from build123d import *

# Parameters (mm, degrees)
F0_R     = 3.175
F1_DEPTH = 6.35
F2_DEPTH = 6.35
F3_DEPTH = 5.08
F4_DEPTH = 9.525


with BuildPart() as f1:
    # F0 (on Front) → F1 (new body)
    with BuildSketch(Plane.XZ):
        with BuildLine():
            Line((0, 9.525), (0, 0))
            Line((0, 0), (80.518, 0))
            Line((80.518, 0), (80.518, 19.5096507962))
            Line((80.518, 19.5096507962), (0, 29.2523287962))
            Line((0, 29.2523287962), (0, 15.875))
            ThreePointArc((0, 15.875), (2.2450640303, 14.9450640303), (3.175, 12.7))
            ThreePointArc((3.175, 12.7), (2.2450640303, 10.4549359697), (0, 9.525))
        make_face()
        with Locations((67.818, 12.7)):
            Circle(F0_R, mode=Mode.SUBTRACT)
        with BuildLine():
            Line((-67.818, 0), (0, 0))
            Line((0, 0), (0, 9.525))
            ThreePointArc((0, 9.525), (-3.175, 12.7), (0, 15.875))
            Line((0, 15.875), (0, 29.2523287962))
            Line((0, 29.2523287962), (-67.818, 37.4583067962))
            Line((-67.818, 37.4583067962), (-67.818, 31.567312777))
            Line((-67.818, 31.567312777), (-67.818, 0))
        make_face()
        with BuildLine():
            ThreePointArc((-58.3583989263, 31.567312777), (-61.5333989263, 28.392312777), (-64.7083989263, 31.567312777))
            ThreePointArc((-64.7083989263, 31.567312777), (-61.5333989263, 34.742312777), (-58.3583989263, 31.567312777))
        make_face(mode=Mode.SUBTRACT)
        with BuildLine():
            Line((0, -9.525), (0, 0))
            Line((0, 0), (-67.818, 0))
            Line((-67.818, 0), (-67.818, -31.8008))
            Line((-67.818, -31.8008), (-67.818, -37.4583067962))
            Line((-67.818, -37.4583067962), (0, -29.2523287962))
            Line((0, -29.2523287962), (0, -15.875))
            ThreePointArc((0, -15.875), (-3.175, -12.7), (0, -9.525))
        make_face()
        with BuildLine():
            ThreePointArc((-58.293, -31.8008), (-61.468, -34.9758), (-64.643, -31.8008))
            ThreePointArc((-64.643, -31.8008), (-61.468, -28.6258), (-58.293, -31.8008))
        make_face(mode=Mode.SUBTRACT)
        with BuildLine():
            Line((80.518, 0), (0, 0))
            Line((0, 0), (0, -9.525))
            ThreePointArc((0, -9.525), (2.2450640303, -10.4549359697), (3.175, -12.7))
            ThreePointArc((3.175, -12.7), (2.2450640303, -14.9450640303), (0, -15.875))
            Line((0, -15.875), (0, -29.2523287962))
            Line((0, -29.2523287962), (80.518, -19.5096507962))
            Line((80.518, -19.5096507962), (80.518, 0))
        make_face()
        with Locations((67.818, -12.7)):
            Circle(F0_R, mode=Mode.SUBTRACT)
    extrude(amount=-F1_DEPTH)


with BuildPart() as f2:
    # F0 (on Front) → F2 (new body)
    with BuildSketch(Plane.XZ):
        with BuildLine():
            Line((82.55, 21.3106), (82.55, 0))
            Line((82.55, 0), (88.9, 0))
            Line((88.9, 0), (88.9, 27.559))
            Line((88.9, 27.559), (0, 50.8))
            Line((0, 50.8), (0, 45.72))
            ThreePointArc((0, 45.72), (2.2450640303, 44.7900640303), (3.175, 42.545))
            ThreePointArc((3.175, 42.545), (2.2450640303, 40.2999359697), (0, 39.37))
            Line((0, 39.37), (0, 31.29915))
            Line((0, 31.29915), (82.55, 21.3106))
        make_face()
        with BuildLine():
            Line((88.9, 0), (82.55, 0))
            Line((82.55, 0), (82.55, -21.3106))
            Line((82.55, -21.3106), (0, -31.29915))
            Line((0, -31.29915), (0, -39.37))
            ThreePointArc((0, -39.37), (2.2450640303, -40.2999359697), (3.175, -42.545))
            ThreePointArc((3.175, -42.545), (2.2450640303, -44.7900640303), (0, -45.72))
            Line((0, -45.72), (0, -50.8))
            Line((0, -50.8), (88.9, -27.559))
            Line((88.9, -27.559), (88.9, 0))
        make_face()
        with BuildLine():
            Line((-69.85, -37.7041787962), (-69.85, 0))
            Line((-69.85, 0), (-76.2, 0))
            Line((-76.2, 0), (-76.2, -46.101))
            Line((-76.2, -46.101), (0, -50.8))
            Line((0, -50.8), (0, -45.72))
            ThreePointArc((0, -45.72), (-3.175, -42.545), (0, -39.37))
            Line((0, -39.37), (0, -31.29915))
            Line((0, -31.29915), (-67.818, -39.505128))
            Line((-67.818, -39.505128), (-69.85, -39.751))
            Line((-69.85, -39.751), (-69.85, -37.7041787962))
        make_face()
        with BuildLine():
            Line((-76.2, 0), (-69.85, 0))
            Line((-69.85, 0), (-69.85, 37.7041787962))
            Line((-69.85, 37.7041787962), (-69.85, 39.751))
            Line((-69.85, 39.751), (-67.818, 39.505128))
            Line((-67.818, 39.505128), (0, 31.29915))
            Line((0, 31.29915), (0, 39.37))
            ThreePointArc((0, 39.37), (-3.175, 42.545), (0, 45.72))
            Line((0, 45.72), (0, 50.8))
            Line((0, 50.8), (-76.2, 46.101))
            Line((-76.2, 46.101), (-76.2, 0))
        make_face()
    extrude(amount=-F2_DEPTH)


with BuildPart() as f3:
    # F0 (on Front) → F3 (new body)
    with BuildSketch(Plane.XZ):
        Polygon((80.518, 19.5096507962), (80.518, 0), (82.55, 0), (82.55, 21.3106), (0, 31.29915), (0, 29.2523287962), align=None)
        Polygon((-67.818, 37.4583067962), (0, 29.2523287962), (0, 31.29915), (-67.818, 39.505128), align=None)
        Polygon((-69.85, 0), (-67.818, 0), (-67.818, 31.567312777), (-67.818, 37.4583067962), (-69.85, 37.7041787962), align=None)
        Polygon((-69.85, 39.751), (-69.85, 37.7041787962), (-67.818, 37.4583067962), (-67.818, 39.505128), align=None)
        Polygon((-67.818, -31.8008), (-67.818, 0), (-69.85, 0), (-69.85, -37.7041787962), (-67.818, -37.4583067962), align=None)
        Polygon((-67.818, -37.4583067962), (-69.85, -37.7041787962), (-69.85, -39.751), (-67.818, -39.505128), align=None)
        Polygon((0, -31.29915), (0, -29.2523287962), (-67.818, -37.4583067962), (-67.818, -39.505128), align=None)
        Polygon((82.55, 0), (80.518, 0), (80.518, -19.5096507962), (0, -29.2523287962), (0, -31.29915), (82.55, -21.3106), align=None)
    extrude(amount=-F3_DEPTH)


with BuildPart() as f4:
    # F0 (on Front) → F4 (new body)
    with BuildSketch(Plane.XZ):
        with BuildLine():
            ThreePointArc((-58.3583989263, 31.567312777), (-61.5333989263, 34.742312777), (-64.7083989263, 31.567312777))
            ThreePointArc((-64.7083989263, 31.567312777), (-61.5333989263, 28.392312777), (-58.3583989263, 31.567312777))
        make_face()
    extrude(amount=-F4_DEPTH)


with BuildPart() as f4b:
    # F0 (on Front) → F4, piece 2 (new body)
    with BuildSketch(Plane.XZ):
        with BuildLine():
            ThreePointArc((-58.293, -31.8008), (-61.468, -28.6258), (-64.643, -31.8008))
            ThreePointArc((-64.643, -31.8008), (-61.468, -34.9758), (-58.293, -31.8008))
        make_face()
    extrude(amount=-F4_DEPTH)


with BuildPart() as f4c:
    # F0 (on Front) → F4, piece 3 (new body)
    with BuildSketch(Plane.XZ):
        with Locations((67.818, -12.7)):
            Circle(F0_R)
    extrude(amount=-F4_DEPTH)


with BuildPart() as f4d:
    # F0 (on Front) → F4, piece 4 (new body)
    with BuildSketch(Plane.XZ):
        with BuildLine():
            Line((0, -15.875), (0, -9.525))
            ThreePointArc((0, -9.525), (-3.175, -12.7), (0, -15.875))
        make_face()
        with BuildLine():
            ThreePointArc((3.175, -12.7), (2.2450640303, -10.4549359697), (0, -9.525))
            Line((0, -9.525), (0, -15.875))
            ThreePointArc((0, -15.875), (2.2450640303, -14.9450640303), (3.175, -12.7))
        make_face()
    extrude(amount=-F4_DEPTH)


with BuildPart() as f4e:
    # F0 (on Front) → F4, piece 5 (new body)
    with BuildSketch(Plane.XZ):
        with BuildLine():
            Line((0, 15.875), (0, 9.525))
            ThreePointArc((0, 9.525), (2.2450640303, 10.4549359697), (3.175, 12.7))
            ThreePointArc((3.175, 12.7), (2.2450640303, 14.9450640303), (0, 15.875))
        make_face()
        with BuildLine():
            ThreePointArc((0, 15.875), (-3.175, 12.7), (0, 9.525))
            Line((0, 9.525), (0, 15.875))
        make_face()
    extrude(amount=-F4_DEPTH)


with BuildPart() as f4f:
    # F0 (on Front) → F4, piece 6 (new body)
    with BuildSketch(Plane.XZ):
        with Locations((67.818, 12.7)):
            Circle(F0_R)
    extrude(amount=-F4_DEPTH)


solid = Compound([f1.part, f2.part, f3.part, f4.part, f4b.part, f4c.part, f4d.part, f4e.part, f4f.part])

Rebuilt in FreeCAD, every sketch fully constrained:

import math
import FreeCAD as App
import Part
import Sketcher
from FreeCAD import Vector
Q = App.Units.Quantity


def add_polygon(sketch, points):
    """Adds a closed chain of lines whose ends are joined by coincident constraints."""
    first, n = sketch.GeometryCount, len(points)
    for a, b in zip(points, points[1:] + points[:1]):
        sketch.addGeometry(Part.LineSegment(App.Vector(*a, 0), App.Vector(*b, 0)), False)
    for i in range(n):
        sketch.addConstraint(Sketcher.Constraint("Coincident", first + i, 2, first + (i + 1) % n, 1))

doc = App.newDocument("Part")
body = doc.addObject("PartDesign::Body", "Body")

# Sketch on XZ plane
sketch1 = doc.addObject("Sketcher::SketchObject", "Sketch")
body.addObject(sketch1)
sketch1.AttachmentSupport = (doc.XZ_Plane, [""])
sketch1.MapMode = "FlatFace"
add_polygon(sketch1, [(80.518, 19.509651), (-67.818, 37.458307), (-67.818, -37.458307), (80.518, -19.509651)])  # lines 0-3
sketch1.addGeometry(Part.Circle(Vector(-61.468, -31.8008, 0), Vector(0, 0, 1), 3.175), False)  # 4
sketch1.addGeometry(Part.ArcOfCircle(Part.Circle(Vector(0, -12.7, 0), Vector(0, 0, 1), 3.175), math.radians(90), math.radians(270)), False)  # 5
sketch1.addGeometry(Part.ArcOfCircle(Part.Circle(Vector(0, -12.7, 0), Vector(0, 0, 1), 3.175), math.radians(0), math.radians(90)), False)  # 6
sketch1.addGeometry(Part.ArcOfCircle(Part.Circle(Vector(0, -12.7, 0), Vector(0, 0, 1), 3.175), math.radians(-90), math.radians(0)), False)  # 7
sketch1.addGeometry(Part.Circle(Vector(67.818, -12.7, 0), Vector(0, 0, 1), 3.175), False)  # 8
sketch1.addGeometry(Part.ArcOfCircle(Part.Circle(Vector(0, 12.7, 0), Vector(0, 0, 1), 3.175), math.radians(-90), math.radians(0)), False)  # 9
sketch1.addGeometry(Part.ArcOfCircle(Part.Circle(Vector(0, 12.7, 0), Vector(0, 0, 1), 3.175), math.radians(90), math.radians(270)), False)  # 10
sketch1.addGeometry(Part.ArcOfCircle(Part.Circle(Vector(0, 12.7, 0), Vector(0, 0, 1), 3.175), math.radians(0), math.radians(90)), False)  # 11
sketch1.addGeometry(Part.Circle(Vector(-61.533399, 31.567313, 0), Vector(0, 0, 1), 3.175), False)  # 12
sketch1.addGeometry(Part.Circle(Vector(67.818, 12.7, 0), Vector(0, 0, 1), 3.175), False)  # 13
sketch1.addConstraint([
    Sketcher.Constraint("Tangent", 5, 1, 6, 2),
    Sketcher.Constraint("Tangent", 6, 1, 7, 2),
    Sketcher.Constraint("Tangent", 7, 1, 5, 2),
    Sketcher.Constraint("Tangent", 9, 1, 10, 2),
    Sketcher.Constraint("Tangent", 10, 1, 11, 2),
    Sketcher.Constraint("Tangent", 11, 1, 9, 2),
    Sketcher.Constraint("Vertical", 1),
    Sketcher.Constraint("Vertical", 3),
    Sketcher.Constraint("Equal", 4, 5),
    Sketcher.Constraint("Equal", 7, 8),
    Sketcher.Constraint("Equal", 8, 9),
    Sketcher.Constraint("Equal", 11, 12),
    Sketcher.Constraint("Equal", 12, 13),
    Sketcher.Constraint("Symmetric", 5, 3, 9, 3, -1, 1),
    Sketcher.Constraint("Symmetric", 8, 3, 13, 3, -1),
    Sketcher.Constraint("Symmetric", 6, 1, 11, 1, -1),
    Sketcher.Constraint("PointOnObject", 5, 1, -2),
    Sketcher.Constraint("PointOnObject", 7, 1, -2),
    Sketcher.Constraint("PointOnObject", 9, 1, -2),
    Sketcher.Constraint("PointOnObject", 10, 1, -2),
    Sketcher.Constraint("Horizontal", 7, 3, 8, 3),
    Sketcher.Constraint("Horizontal", 8, 3, 6, 1),
    Sketcher.Constraint("Equal", 0, 2),
    Sketcher.Constraint("Diameter", 4, Q("0.25 in")),
    Sketcher.Constraint("DistanceY", 5, 3, 9, 3, Q("1 in")),
    Sketcher.Constraint("DistanceX", 8, 3, 2, 2, Q("0.5 in")),
    Sketcher.Constraint("DistanceX", 4, 3, -1, 1, Q("2.42 in")),
    Sketcher.Constraint("DistanceX", -1, 1, 8, 3, Q("2.67 in")),
    Sketcher.Constraint("DistanceX", 0, 2, -1, 1, Q("2.67 in")),
    Sketcher.Constraint("DistanceY", 4, 3, -1, 1, Q("1.252 in")),
    Sketcher.Constraint("DistanceY", 3, 1, 3, 2, 39.019302),
    Sketcher.Constraint("DistanceX", 12, 3, -1, 1, 61.533399),
    Sketcher.Constraint("DistanceY", 1, 2, 1, 1, 74.916614),
    Sketcher.Constraint("DistanceY", 2, 2, -1, 1, 19.509651),
    Sketcher.Constraint("DistanceY", 1, 2, 12, 3, 69.02562),
])
pad1 = doc.addObject("PartDesign::Pad", "Pad")
body.addObject(pad1)
pad1.Profile = sketch1
pad1.Length = Q("0.25 in")
pad1.Reversed = True
body2 = doc.addObject("PartDesign::Body", "Body001")

# Sketch on XZ plane
sketch2 = doc.addObject("Sketcher::SketchObject", "Sketch001")
body2.addObject(sketch2)
sketch2.AttachmentSupport = (doc.getObject("XZ_Plane001"), [""])
sketch2.MapMode = "FlatFace"
add_polygon(sketch2, [(-76.2, -46.101), (0, -50.8), (88.9, -27.559), (88.9, 27.559), (0, 50.8), (-76.2, 46.101)])  # lines 0-5
add_polygon(sketch2, [(82.55, 21.3106), (82.55, -21.3106), (-69.85, -39.751), (-69.85, 39.751)])  # lines 6-9
sketch2.addGeometry(Part.ArcOfCircle(Part.Circle(Vector(0, 42.545, 0), Vector(0, 0, 1), 3.175), math.radians(0), math.radians(90)), False)  # 10
sketch2.addGeometry(Part.ArcOfCircle(Part.Circle(Vector(0, 42.545, 0), Vector(0, 0, 1), 3.175), math.radians(-90), math.radians(0)), False)  # 11
sketch2.addGeometry(Part.ArcOfCircle(Part.Circle(Vector(0, 42.545, 0), Vector(0, 0, 1), 3.175), math.radians(90), math.radians(270)), False)  # 12
sketch2.addGeometry(Part.ArcOfCircle(Part.Circle(Vector(0, -42.545, 0), Vector(0, 0, 1), 3.175), math.radians(0), math.radians(90)), False)  # 13
sketch2.addGeometry(Part.ArcOfCircle(Part.Circle(Vector(0, -42.545, 0), Vector(0, 0, 1), 3.175), math.radians(-90), math.radians(0)), False)  # 14
sketch2.addGeometry(Part.ArcOfCircle(Part.Circle(Vector(0, -42.545, 0), Vector(0, 0, 1), 3.175), math.radians(90), math.radians(270)), False)  # 15
sketch2.addConstraint([
    Sketcher.Constraint("Tangent", 10, 1, 11, 2),
    Sketcher.Constraint("Tangent", 11, 1, 12, 2),
    Sketcher.Constraint("Tangent", 12, 1, 10, 2),
    Sketcher.Constraint("Tangent", 13, 1, 14, 2),
    Sketcher.Constraint("Tangent", 14, 1, 15, 2),
    Sketcher.Constraint("Tangent", 15, 1, 13, 2),
    Sketcher.Constraint("Vertical", 2),
    Sketcher.Constraint("Vertical", 5),
    Sketcher.Constraint("Vertical", 6),
    Sketcher.Constraint("Vertical", 8),
    Sketcher.Constraint("Equal", 12, 13),
    Sketcher.Constraint("Symmetric", 10, 3, 13, 3, -1, 1),
    Sketcher.Constraint("Symmetric", 0, 2, 3, 2, -1, 1),
    Sketcher.Constraint("Symmetric", 10, 1, 13, 1, -1),
    Sketcher.Constraint("PointOnObject", 0, 2, -2),
    Sketcher.Constraint("PointOnObject", 11, 1, -2),
    Sketcher.Constraint("PointOnObject", 12, 1, -2),
    Sketcher.Constraint("PointOnObject", 14, 1, -2),
    Sketcher.Constraint("PointOnObject", 15, 1, -2),
    Sketcher.Constraint("Horizontal", 12, 3, 10, 1),
    Sketcher.Constraint("Equal", 1, 3),
    Sketcher.Constraint("Equal", 0, 4),
    Sketcher.Constraint("Equal", 7, 9),
    Sketcher.Constraint("DistanceY", 0, 2, -1, 1, Q("2 in")),
    Sketcher.Constraint("DistanceX", 4, 2, -1, 1, Q("3 in")),
    Sketcher.Constraint("Radius", 10, Q("0.125 in")),
    Sketcher.Constraint("DistanceY", 2, 1, 2, 2, Q("2.17 in")),
    Sketcher.Constraint("DistanceY", 5, 2, 5, 1, Q("3.63 in")),
    Sketcher.Constraint("DistanceY", 8, 1, 8, 2, Q("3.13 in")),
    Sketcher.Constraint("DistanceX", -1, 1, 1, 2, Q("3.5 in")),
    Sketcher.Constraint("DistanceY", -1, 1, 12, 1, Q("1.8 in")),
    Sketcher.Constraint("DistanceY", 6, 2, 6, 1, Q("1.678 in")),
    Sketcher.Constraint("DistanceX", -1, 1, 6, 2, Q("3.25 in")),
    Sketcher.Constraint("DistanceX", 7, 2, -1, 1, Q("2.75 in")),
    Sketcher.Constraint("DistanceY", 5, 2, 7, 2, Q("0.25 in")),
])
pad2 = doc.addObject("PartDesign::Pad", "Pad001")
body2.addObject(pad2)
pad2.Profile = sketch2
pad2.Length = Q("0.25 in")
pad2.Reversed = True
body3 = doc.addObject("PartDesign::Body", "Body002")

# Sketch on XZ plane
sketch3 = doc.addObject("Sketcher::SketchObject", "Sketch002")
body3.addObject(sketch3)
sketch3.AttachmentSupport = (doc.getObject("XZ_Plane002"), [""])
sketch3.MapMode = "FlatFace"
add_polygon(sketch3, [(82.55, 21.3106), (-69.85, 39.751), (-69.85, -39.751), (82.55, -21.3106)])  # lines 0-3
add_polygon(sketch3, [(80.518, 19.509651), (80.518, -19.509651), (-67.818, -37.458307), (-67.818, 37.458307)])  # lines 4-7
sketch3.addConstraint([
    Sketcher.Constraint("Vertical", 1),
    Sketcher.Constraint("Vertical", 3),
    Sketcher.Constraint("Vertical", 4),
    Sketcher.Constraint("Vertical", 6),
    Sketcher.Constraint("Parallel", 2, 5),
    Sketcher.Constraint("Parallel", 0, 7),
    Sketcher.Constraint("Equal", 0, 2),
    Sketcher.Constraint("DistanceX", 1, 2, 2, 2, Q("6 in")),
    Sketcher.Constraint("DistanceY", 1, 2, 1, 1, Q("3.13 in")),
    Sketcher.Constraint("DistanceY", 3, 1, 3, 2, Q("1.678 in")),
    Sketcher.Constraint("DistanceX", 0, 2, -1, 1, Q("2.75 in")),
    Sketcher.Constraint("DistanceX", -1, 1, 4, 2, Q("3.17 in")),
    Sketcher.Constraint("DistanceX", 5, 2, -1, 1, Q("2.67 in")),
    Sketcher.Constraint("DistanceY", -1, 1, 0, 2, Q("1.565 in")),
    Sketcher.Constraint("DistanceY", 4, 2, 4, 1, 39.019302),
    Sketcher.Constraint("DistanceY", 4, 2, -1, 1, 19.509651),
])
pad3 = doc.addObject("PartDesign::Pad", "Pad002")
body3.addObject(pad3)
pad3.Profile = sketch3
pad3.Length = Q("0.2 in")
pad3.Reversed = True
body4 = doc.addObject("PartDesign::Body", "Body003")

# Sketch on XZ plane
sketch4 = doc.addObject("Sketcher::SketchObject", "Sketch003")
body4.addObject(sketch4)
sketch4.AttachmentSupport = (doc.getObject("XZ_Plane003"), [""])
sketch4.MapMode = "FlatFace"
sketch4.addGeometry(Part.Circle(Vector(-61.533399, 31.567313, 0), Vector(0, 0, 1), 3.175), False)
sketch4.addConstraint([
    Sketcher.Constraint("Diameter", 0, Q("0.25 in")),
    Sketcher.Constraint("DistanceX", 0, 3, -1, 1, 61.533399),
    Sketcher.Constraint("DistanceY", -1, 1, 0, 3, 31.567313),
])
pad4 = doc.addObject("PartDesign::Pad", "Pad003")
body4.addObject(pad4)
pad4.Profile = sketch4
pad4.Length = Q("0.375 in")
pad4.Reversed = True
body5 = doc.addObject("PartDesign::Body", "Body004")

# Sketch on XZ plane
sketch5 = doc.addObject("Sketcher::SketchObject", "Sketch004")
body5.addObject(sketch5)
sketch5.AttachmentSupport = (doc.getObject("XZ_Plane004"), [""])
sketch5.MapMode = "FlatFace"
sketch5.addGeometry(Part.Circle(Vector(-61.468, -31.8008, 0), Vector(0, 0, 1), 3.175), False)
sketch5.addConstraint([
    Sketcher.Constraint("Diameter", 0, Q("0.25 in")),
    Sketcher.Constraint("DistanceX", 0, 3, -1, 1, Q("2.42 in")),
    Sketcher.Constraint("DistanceY", 0, 3, -1, 1, Q("1.252 in")),
])
pad5 = doc.addObject("PartDesign::Pad", "Pad004")
body5.addObject(pad5)
pad5.Profile = sketch5
pad5.Length = Q("0.375 in")
pad5.Reversed = True
body6 = doc.addObject("PartDesign::Body", "Body005")

# Sketch on XZ plane
sketch6 = doc.addObject("Sketcher::SketchObject", "Sketch005")
body6.addObject(sketch6)
sketch6.AttachmentSupport = (doc.getObject("XZ_Plane005"), [""])
sketch6.MapMode = "FlatFace"
sketch6.addGeometry(Part.Circle(Vector(67.818, -12.7, 0), Vector(0, 0, 1), 3.175), False)
sketch6.addConstraint([
    Sketcher.Constraint("Diameter", 0, Q("0.25 in")),
    Sketcher.Constraint("DistanceY", 0, 3, -1, 1, Q("0.5 in")),
    Sketcher.Constraint("DistanceX", -1, 1, 0, 3, Q("2.67 in")),
])
pad6 = doc.addObject("PartDesign::Pad", "Pad005")
body6.addObject(pad6)
pad6.Profile = sketch6
pad6.Length = Q("0.375 in")
pad6.Reversed = True
body7 = doc.addObject("PartDesign::Body", "Body006")

# Sketch on XZ plane
sketch7 = doc.addObject("Sketcher::SketchObject", "Sketch006")
body7.addObject(sketch7)
sketch7.AttachmentSupport = (doc.getObject("XZ_Plane006"), [""])
sketch7.MapMode = "FlatFace"
sketch7.addGeometry([
    Part.ArcOfCircle(Part.Circle(Vector(0, -12.7, 0), Vector(0, 0, 1), 3.175), math.radians(90), math.radians(270)),
    Part.ArcOfCircle(Part.Circle(Vector(0, -12.7, 0), Vector(0, 0, 1), 3.175), math.radians(-90), math.radians(0)),
    Part.ArcOfCircle(Part.Circle(Vector(0, -12.7, 0), Vector(0, 0, 1), 3.175), math.radians(0), math.radians(90)),
], False)
sketch7.addConstraint([
    Sketcher.Constraint("Tangent", 0, 2, 1, 1),
    Sketcher.Constraint("Tangent", 1, 2, 2, 1),
    Sketcher.Constraint("Tangent", 2, 2, 0, 1),
    Sketcher.Constraint("PointOnObject", 0, 3, -2),
    Sketcher.Constraint("PointOnObject", 0, 2, -2),
    Sketcher.Constraint("PointOnObject", 2, 2, -2),
    Sketcher.Constraint("Horizontal", 2, 3, 1, 2),
    Sketcher.Constraint("Radius", 0, Q("0.125 in")),
    Sketcher.Constraint("DistanceY", 0, 3, -1, 1, Q("0.5 in")),
])
pad7 = doc.addObject("PartDesign::Pad", "Pad006")
body7.addObject(pad7)
pad7.Profile = sketch7
pad7.Length = Q("0.375 in")
pad7.Reversed = True
body8 = doc.addObject("PartDesign::Body", "Body007")

# Sketch on XZ plane
sketch8 = doc.addObject("Sketcher::SketchObject", "Sketch007")
body8.addObject(sketch8)
sketch8.AttachmentSupport = (doc.getObject("XZ_Plane007"), [""])
sketch8.MapMode = "FlatFace"
sketch8.addGeometry([
    Part.ArcOfCircle(Part.Circle(Vector(0, 12.7, 0), Vector(0, 0, 1), 3.175), math.radians(-90), math.radians(0)),
    Part.ArcOfCircle(Part.Circle(Vector(0, 12.7, 0), Vector(0, 0, 1), 3.175), math.radians(0), math.radians(90)),
    Part.ArcOfCircle(Part.Circle(Vector(0, 12.7, 0), Vector(0, 0, 1), 3.175), math.radians(90), math.radians(270)),
], False)
sketch8.addConstraint([
    Sketcher.Constraint("Tangent", 0, 2, 1, 1),
    Sketcher.Constraint("Tangent", 1, 2, 2, 1),
    Sketcher.Constraint("Tangent", 2, 2, 0, 1),
    Sketcher.Constraint("PointOnObject", 0, 3, -2),
    Sketcher.Constraint("PointOnObject", 1, 2, -2),
    Sketcher.Constraint("PointOnObject", 2, 2, -2),
    Sketcher.Constraint("Horizontal", 2, 3, 0, 2),
    Sketcher.Constraint("Radius", 0, Q("0.125 in")),
    Sketcher.Constraint("DistanceY", -1, 1, 0, 3, Q("0.5 in")),
])
pad8 = doc.addObject("PartDesign::Pad", "Pad007")
body8.addObject(pad8)
pad8.Profile = sketch8
pad8.Length = Q("0.375 in")
pad8.Reversed = True
body9 = doc.addObject("PartDesign::Body", "Body008")

# Sketch on XZ plane
sketch9 = doc.addObject("Sketcher::SketchObject", "Sketch008")
body9.addObject(sketch9)
sketch9.AttachmentSupport = (doc.getObject("XZ_Plane008"), [""])
sketch9.MapMode = "FlatFace"
sketch9.addGeometry(Part.Circle(Vector(67.818, 12.7, 0), Vector(0, 0, 1), 3.175), False)
sketch9.addConstraint([
    Sketcher.Constraint("Diameter", 0, Q("0.25 in")),
    Sketcher.Constraint("DistanceY", -1, 1, 0, 3, Q("0.5 in")),
    Sketcher.Constraint("DistanceX", -1, 1, 0, 3, Q("2.67 in")),
])
pad9 = doc.addObject("PartDesign::Pad", "Pad008")
body9.addObject(pad9)
pad9.Profile = sketch9
pad9.Length = Q("0.375 in")
pad9.Reversed = True

doc.recompute()
